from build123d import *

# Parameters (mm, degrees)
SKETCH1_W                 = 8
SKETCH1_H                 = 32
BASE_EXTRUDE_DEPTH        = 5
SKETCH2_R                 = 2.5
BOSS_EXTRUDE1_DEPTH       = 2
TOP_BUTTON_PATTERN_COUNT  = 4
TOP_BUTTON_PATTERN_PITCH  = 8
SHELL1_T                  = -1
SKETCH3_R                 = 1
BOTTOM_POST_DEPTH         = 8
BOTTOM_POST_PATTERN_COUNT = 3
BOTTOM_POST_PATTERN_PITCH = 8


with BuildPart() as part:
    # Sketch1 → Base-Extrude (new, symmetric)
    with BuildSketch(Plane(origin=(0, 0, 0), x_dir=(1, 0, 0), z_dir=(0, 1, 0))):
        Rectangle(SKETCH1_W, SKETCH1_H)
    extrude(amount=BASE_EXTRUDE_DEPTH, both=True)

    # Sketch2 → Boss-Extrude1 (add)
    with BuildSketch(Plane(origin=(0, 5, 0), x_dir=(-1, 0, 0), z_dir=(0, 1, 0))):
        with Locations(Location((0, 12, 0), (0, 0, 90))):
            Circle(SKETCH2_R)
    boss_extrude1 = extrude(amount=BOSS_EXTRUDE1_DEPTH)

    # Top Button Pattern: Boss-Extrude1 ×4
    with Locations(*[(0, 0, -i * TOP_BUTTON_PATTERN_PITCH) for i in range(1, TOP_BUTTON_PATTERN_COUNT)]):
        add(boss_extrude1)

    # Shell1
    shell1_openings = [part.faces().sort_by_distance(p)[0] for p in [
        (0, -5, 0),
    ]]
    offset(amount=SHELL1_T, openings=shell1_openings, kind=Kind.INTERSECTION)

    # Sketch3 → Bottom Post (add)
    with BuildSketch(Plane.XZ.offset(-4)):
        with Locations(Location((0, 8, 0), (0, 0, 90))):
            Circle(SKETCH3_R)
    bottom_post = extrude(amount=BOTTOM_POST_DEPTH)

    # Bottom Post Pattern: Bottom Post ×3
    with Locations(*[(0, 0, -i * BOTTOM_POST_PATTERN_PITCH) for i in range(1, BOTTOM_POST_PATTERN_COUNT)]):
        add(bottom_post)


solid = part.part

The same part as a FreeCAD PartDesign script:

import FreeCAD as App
import Part
import Sketcher
from FreeCAD import Vector
Q = App.Units.Quantity


def faces_at(feature, points):
    """Names of the faces that lie closest to the given points."""
    faces = feature.Shape.Faces
    near = lambda p: min(range(len(faces)), key=lambda i: faces[i].distToShape(Part.Vertex(*p))[0])
    return sorted({f"Face{near(p) + 1}" for p in points})

doc = App.newDocument("Part")
body = doc.addObject("PartDesign::Body", "Body")

# Sketch on XZ plane
sketch1 = doc.addObject("Sketcher::SketchObject", "Sketch")
body.addObject(sketch1)
sketch1.AttachmentSupport = (doc.XZ_Plane, [""])
sketch1.MapMode = "FlatFace"
sketch1.addGeometry([
    Part.LineSegment(Vector(-4, -16, 0), Vector(-4, 16, 0)),
    Part.LineSegment(Vector(-4, 16, 0), Vector(4, 16, 0)),
    Part.LineSegment(Vector(4, 16, 0), Vector(4, -16, 0)),
    Part.LineSegment(Vector(4, -16, 0), Vector(-4, -16, 0)),
], False)
sketch1.addConstraint([
    Sketcher.Constraint("Coincident", 0, 2, 1, 1),
    Sketcher.Constraint("Coincident", 1, 2, 2, 1),
    Sketcher.Constraint("Coincident", 2, 2, 3, 1),
    Sketcher.Constraint("Coincident", 3, 2, 0, 1),
    Sketcher.Constraint("Vertical", 0),
    Sketcher.Constraint("Horizontal", 1),
    Sketcher.Constraint("Vertical", 2),
    Sketcher.Constraint("Horizontal", 3),
    Sketcher.Constraint("Symmetric", 0, 2, 2, 2, -1, 1),
    Sketcher.Constraint("DistanceX", 1, 1, 1, 2, Q("8 mm")),
    Sketcher.Constraint("DistanceY", 0, 1, 0, 2, Q("32 mm")),
])
pad1 = doc.addObject("PartDesign::Pad", "Pad")
body.addObject(pad1)
pad1.Profile = sketch1
pad1.Length = 10
pad1.Midplane = True

# Sketch on XZ plane
sketch2 = doc.addObject("Sketcher::SketchObject", "Sketch001")
body.addObject(sketch2)
sketch2.AttachmentSupport = (doc.XZ_Plane, [""])
sketch2.MapMode = "FlatFace"
sketch2.AttachmentOffset = App.Placement(Vector(0, 0, -5), App.Rotation())
sketch2.addGeometry(Part.Circle(Vector(0, 12, 0), Vector(0, 0, 1), 2.5), False)
sketch2.addConstraint([
    Sketcher.Constraint("PointOnObject", 0, 3, -2),
    Sketcher.Constraint("Diameter", 0, Q("5 mm")),
    Sketcher.Constraint("DistanceY", -1, 1, 0, 3, Q("12 mm")),
])
pad2 = doc.addObject("PartDesign::Pad", "Pad001")
body.addObject(pad2)
pad2.Profile = sketch2
pad2.Length = 2
pad2.Reversed = True
doc.recompute()

linearpattern = doc.addObject("PartDesign::LinearPattern", "LinearPattern")
body.addObject(linearpattern)
linearpattern.Originals = [pad2]
linearpattern.Direction = (doc.Z_Axis, [""])
linearpattern.Mode = "offset"
linearpattern.Offset = 8
linearpattern.Occurrences = 4
linearpattern.Reversed = True
body.Tip = linearpattern
doc.recompute()

thickness = doc.addObject("PartDesign::Thickness", "Thickness")
body.addObject(thickness)
thickness.Base = (linearpattern, faces_at(linearpattern, [(0, -5, 0)]))
thickness.Value = 1
thickness.Reversed = True
thickness.Join = "Intersection"

# Sketch on XZ plane
sketch3 = doc.addObject("Sketcher::SketchObject", "Sketch002")
body.addObject(sketch3)
sketch3.AttachmentSupport = (doc.XZ_Plane, [""])
sketch3.MapMode = "FlatFace"
sketch3.AttachmentOffset = App.Placement(Vector(0, 0, -4), App.Rotation())
sketch3.addGeometry(Part.Circle(Vector(0, 8, 0), Vector(0, 0, 1), 1), False)
sketch3.addConstraint([
    Sketcher.Constraint("PointOnObject", 0, 3, -2),
    Sketcher.Constraint("Diameter", 0, Q("2 mm")),
    Sketcher.Constraint("DistanceY", -1, 1, 0, 3, Q("8 mm")),
])
pad3 = doc.addObject("PartDesign::Pad", "Pad002")
body.addObject(pad3)
pad3.Profile = sketch3
pad3.Length = 8
doc.recompute()

linearpattern2 = doc.addObject("PartDesign::LinearPattern", "LinearPattern001")
body.addObject(linearpattern2)
linearpattern2.Originals = [pad3]
linearpattern2.Direction = (doc.Z_Axis, [""])
linearpattern2.Mode = "offset"
linearpattern2.Offset = 8
linearpattern2.Occurrences = 3
linearpattern2.Reversed = True
body.Tip = linearpattern2

doc.recompute()
